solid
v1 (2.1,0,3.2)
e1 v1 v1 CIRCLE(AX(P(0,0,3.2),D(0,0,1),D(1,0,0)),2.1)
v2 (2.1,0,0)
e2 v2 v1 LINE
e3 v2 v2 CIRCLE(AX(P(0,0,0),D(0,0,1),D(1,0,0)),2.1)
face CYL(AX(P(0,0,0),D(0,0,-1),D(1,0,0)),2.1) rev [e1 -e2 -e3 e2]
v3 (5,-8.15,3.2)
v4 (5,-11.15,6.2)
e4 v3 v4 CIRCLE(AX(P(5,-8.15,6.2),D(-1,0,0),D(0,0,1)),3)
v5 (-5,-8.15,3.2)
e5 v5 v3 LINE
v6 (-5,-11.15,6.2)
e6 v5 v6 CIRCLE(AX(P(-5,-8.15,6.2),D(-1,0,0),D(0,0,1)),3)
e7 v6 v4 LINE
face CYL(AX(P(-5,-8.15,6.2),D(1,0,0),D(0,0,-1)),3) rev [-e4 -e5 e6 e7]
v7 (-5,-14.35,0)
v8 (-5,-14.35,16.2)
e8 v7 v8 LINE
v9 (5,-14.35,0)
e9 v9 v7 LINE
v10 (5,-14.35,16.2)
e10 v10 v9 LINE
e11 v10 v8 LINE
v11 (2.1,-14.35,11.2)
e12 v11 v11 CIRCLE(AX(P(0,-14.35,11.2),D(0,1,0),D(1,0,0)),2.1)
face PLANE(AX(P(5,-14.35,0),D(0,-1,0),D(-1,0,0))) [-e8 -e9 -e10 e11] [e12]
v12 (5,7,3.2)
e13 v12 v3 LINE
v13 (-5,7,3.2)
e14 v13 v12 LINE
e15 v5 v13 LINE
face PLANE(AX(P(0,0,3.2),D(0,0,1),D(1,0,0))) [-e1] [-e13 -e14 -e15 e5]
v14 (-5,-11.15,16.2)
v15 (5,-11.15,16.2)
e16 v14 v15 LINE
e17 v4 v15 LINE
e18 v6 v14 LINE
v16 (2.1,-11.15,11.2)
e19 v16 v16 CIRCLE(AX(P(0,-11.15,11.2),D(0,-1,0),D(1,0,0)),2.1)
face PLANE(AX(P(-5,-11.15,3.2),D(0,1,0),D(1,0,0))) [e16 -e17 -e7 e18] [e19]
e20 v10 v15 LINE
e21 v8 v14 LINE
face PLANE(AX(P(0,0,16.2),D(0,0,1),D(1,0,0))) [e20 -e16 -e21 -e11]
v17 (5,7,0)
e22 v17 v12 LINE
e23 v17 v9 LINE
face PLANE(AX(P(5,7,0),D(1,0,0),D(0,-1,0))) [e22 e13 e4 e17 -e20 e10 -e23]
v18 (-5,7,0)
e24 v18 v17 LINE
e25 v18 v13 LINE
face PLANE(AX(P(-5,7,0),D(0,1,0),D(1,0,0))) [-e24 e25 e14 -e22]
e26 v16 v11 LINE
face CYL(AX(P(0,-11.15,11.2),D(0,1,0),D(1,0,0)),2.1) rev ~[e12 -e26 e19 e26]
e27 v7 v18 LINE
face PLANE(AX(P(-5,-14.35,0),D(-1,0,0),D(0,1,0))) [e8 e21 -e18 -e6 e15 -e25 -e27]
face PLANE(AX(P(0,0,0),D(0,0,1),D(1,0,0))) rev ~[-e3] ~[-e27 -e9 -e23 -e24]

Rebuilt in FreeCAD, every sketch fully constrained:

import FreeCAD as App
import Part
import Sketcher
from FreeCAD import Vector


def edges_at(feature, points):
    """Names of the edges that pass closest to the given points."""
    edges = feature.Shape.Edges
    near = lambda p: min(range(len(edges)), key=lambda i: edges[i].distToShape(Part.Vertex(*p))[0])
    return sorted({f"Edge{near(p) + 1}" for p in points})


def add_polygon(sketch, points):
    """Adds a closed chain of lines whose ends are joined by coincident constraints."""
    first, n = sketch.GeometryCount, len(points)
    for a, b in zip(points, points[1:] + points[:1]):
        sketch.addGeometry(Part.LineSegment(App.Vector(*a, 0), App.Vector(*b, 0)), False)
    for i in range(n):
        sketch.addConstraint(Sketcher.Constraint("Coincident", first + i, 2, first + (i + 1) % n, 1))

doc = App.newDocument("Part")
body = doc.addObject("PartDesign::Body", "Body")

# Sketch on XY plane
sketch1 = body.newObject("Sketcher::SketchObject", "Sketch")
sketch1.AttachmentSupport = (doc.getObject("XY_Plane"), [""])
sketch1.MapMode = "FlatFace"
add_polygon(sketch1, [(5, 7), (-5, 7), (-5, -14.3), (5, -14.3)])  # lines 0-3
sketch1.addGeometry(Part.Circle(Vector(0, 0, 0), Vector(0, 0, 1), 2.1), False)  # 4
sketch1.addConstraint([
    Sketcher.Constraint("Horizontal", 0),
    Sketcher.Constraint("Vertical", 1),
    Sketcher.Constraint("Horizontal", 2),
    Sketcher.Constraint("Vertical", 3),
    Sketcher.Constraint("Coincident", 4, 3, -1, 1),
    Sketcher.Constraint("Diameter", 4, 4.2),
    Sketcher.Constraint("DistanceX", 0, 2, 0, 1, 10.0),
    Sketcher.Constraint("DistanceY", -1, 1, 0, 2, 7.0),
    Sketcher.Constraint("DistanceX", 0, 2, -1, 1, 5.0),
    Sketcher.Constraint("DistanceY", 1, 2, 1, 1, 21.35),
])
pad1 = body.newObject("PartDesign::Pad", "Pad")
pad1.Profile = sketch1
pad1.Length = 3.2

# Sketch on XY plane
sketch2 = body.newObject("Sketcher::SketchObject", "Sketch001")
sketch2.AttachmentSupport = (doc.getObject("XY_Plane"), [""])
sketch2.MapMode = "FlatFace"
sketch2.AttachmentOffset = App.Placement(Vector(0, 0, 3.2), App.Rotation())
add_polygon(sketch2, [(-5, -14.3), (5, -14.3), (5, -11.2), (-5, -11.2)])  # lines 0-3
sketch2.addConstraint([
    Sketcher.Constraint("Horizontal", 0),
    Sketcher.Constraint("Vertical", 1),
    Sketcher.Constraint("Horizontal", 2),
    Sketcher.Constraint("Vertical", 3),
    Sketcher.Constraint("DistanceX", 0, 1, 0, 2, 10.0),
    Sketcher.Constraint("DistanceY", 1, 1, 1, 2, 3.2),
    Sketcher.Constraint("DistanceX", -1, 1, 0, 2, 5.0),
    Sketcher.Constraint("DistanceY", 0, 2, -1, 1, 14.35),
])
pad2 = body.newObject("PartDesign::Pad", "Pad001")
pad2.Profile = sketch2
pad2.Length = 13
doc.recompute()

fillet = body.newObject("PartDesign::Fillet", "Fillet")
fillet.Base = (pad2, edges_at(pad2, [(0, -11.15, 3.2)]))
fillet.Radius = 3

# Sketch on XZ plane
sketch3 = body.newObject("Sketcher::SketchObject", "Sketch002")
sketch3.AttachmentSupport = (doc.getObject("XZ_Plane"), [""])
sketch3.MapMode = "FlatFace"
sketch3.AttachmentOffset = App.Placement(Vector(0, 0, 11.15), App.Rotation())
sketch3.addGeometry(Part.Circle(Vector(0, 11.2, 0), Vector(0, 0, 1), 2.1), False)
sketch3.addConstraint([
    Sketcher.Constraint("PointOnObject", 0, 3, -2),
    Sketcher.Constraint("Diameter", 0, 4.2),
    Sketcher.Constraint("DistanceY", -1, 1, 0, 3, 11.2),
])
pocket1 = body.newObject("PartDesign::Pocket", "Pocket")
pocket1.Profile = sketch3
pocket1.Length = 13
pocket1.Reversed = True

doc.recompute()
